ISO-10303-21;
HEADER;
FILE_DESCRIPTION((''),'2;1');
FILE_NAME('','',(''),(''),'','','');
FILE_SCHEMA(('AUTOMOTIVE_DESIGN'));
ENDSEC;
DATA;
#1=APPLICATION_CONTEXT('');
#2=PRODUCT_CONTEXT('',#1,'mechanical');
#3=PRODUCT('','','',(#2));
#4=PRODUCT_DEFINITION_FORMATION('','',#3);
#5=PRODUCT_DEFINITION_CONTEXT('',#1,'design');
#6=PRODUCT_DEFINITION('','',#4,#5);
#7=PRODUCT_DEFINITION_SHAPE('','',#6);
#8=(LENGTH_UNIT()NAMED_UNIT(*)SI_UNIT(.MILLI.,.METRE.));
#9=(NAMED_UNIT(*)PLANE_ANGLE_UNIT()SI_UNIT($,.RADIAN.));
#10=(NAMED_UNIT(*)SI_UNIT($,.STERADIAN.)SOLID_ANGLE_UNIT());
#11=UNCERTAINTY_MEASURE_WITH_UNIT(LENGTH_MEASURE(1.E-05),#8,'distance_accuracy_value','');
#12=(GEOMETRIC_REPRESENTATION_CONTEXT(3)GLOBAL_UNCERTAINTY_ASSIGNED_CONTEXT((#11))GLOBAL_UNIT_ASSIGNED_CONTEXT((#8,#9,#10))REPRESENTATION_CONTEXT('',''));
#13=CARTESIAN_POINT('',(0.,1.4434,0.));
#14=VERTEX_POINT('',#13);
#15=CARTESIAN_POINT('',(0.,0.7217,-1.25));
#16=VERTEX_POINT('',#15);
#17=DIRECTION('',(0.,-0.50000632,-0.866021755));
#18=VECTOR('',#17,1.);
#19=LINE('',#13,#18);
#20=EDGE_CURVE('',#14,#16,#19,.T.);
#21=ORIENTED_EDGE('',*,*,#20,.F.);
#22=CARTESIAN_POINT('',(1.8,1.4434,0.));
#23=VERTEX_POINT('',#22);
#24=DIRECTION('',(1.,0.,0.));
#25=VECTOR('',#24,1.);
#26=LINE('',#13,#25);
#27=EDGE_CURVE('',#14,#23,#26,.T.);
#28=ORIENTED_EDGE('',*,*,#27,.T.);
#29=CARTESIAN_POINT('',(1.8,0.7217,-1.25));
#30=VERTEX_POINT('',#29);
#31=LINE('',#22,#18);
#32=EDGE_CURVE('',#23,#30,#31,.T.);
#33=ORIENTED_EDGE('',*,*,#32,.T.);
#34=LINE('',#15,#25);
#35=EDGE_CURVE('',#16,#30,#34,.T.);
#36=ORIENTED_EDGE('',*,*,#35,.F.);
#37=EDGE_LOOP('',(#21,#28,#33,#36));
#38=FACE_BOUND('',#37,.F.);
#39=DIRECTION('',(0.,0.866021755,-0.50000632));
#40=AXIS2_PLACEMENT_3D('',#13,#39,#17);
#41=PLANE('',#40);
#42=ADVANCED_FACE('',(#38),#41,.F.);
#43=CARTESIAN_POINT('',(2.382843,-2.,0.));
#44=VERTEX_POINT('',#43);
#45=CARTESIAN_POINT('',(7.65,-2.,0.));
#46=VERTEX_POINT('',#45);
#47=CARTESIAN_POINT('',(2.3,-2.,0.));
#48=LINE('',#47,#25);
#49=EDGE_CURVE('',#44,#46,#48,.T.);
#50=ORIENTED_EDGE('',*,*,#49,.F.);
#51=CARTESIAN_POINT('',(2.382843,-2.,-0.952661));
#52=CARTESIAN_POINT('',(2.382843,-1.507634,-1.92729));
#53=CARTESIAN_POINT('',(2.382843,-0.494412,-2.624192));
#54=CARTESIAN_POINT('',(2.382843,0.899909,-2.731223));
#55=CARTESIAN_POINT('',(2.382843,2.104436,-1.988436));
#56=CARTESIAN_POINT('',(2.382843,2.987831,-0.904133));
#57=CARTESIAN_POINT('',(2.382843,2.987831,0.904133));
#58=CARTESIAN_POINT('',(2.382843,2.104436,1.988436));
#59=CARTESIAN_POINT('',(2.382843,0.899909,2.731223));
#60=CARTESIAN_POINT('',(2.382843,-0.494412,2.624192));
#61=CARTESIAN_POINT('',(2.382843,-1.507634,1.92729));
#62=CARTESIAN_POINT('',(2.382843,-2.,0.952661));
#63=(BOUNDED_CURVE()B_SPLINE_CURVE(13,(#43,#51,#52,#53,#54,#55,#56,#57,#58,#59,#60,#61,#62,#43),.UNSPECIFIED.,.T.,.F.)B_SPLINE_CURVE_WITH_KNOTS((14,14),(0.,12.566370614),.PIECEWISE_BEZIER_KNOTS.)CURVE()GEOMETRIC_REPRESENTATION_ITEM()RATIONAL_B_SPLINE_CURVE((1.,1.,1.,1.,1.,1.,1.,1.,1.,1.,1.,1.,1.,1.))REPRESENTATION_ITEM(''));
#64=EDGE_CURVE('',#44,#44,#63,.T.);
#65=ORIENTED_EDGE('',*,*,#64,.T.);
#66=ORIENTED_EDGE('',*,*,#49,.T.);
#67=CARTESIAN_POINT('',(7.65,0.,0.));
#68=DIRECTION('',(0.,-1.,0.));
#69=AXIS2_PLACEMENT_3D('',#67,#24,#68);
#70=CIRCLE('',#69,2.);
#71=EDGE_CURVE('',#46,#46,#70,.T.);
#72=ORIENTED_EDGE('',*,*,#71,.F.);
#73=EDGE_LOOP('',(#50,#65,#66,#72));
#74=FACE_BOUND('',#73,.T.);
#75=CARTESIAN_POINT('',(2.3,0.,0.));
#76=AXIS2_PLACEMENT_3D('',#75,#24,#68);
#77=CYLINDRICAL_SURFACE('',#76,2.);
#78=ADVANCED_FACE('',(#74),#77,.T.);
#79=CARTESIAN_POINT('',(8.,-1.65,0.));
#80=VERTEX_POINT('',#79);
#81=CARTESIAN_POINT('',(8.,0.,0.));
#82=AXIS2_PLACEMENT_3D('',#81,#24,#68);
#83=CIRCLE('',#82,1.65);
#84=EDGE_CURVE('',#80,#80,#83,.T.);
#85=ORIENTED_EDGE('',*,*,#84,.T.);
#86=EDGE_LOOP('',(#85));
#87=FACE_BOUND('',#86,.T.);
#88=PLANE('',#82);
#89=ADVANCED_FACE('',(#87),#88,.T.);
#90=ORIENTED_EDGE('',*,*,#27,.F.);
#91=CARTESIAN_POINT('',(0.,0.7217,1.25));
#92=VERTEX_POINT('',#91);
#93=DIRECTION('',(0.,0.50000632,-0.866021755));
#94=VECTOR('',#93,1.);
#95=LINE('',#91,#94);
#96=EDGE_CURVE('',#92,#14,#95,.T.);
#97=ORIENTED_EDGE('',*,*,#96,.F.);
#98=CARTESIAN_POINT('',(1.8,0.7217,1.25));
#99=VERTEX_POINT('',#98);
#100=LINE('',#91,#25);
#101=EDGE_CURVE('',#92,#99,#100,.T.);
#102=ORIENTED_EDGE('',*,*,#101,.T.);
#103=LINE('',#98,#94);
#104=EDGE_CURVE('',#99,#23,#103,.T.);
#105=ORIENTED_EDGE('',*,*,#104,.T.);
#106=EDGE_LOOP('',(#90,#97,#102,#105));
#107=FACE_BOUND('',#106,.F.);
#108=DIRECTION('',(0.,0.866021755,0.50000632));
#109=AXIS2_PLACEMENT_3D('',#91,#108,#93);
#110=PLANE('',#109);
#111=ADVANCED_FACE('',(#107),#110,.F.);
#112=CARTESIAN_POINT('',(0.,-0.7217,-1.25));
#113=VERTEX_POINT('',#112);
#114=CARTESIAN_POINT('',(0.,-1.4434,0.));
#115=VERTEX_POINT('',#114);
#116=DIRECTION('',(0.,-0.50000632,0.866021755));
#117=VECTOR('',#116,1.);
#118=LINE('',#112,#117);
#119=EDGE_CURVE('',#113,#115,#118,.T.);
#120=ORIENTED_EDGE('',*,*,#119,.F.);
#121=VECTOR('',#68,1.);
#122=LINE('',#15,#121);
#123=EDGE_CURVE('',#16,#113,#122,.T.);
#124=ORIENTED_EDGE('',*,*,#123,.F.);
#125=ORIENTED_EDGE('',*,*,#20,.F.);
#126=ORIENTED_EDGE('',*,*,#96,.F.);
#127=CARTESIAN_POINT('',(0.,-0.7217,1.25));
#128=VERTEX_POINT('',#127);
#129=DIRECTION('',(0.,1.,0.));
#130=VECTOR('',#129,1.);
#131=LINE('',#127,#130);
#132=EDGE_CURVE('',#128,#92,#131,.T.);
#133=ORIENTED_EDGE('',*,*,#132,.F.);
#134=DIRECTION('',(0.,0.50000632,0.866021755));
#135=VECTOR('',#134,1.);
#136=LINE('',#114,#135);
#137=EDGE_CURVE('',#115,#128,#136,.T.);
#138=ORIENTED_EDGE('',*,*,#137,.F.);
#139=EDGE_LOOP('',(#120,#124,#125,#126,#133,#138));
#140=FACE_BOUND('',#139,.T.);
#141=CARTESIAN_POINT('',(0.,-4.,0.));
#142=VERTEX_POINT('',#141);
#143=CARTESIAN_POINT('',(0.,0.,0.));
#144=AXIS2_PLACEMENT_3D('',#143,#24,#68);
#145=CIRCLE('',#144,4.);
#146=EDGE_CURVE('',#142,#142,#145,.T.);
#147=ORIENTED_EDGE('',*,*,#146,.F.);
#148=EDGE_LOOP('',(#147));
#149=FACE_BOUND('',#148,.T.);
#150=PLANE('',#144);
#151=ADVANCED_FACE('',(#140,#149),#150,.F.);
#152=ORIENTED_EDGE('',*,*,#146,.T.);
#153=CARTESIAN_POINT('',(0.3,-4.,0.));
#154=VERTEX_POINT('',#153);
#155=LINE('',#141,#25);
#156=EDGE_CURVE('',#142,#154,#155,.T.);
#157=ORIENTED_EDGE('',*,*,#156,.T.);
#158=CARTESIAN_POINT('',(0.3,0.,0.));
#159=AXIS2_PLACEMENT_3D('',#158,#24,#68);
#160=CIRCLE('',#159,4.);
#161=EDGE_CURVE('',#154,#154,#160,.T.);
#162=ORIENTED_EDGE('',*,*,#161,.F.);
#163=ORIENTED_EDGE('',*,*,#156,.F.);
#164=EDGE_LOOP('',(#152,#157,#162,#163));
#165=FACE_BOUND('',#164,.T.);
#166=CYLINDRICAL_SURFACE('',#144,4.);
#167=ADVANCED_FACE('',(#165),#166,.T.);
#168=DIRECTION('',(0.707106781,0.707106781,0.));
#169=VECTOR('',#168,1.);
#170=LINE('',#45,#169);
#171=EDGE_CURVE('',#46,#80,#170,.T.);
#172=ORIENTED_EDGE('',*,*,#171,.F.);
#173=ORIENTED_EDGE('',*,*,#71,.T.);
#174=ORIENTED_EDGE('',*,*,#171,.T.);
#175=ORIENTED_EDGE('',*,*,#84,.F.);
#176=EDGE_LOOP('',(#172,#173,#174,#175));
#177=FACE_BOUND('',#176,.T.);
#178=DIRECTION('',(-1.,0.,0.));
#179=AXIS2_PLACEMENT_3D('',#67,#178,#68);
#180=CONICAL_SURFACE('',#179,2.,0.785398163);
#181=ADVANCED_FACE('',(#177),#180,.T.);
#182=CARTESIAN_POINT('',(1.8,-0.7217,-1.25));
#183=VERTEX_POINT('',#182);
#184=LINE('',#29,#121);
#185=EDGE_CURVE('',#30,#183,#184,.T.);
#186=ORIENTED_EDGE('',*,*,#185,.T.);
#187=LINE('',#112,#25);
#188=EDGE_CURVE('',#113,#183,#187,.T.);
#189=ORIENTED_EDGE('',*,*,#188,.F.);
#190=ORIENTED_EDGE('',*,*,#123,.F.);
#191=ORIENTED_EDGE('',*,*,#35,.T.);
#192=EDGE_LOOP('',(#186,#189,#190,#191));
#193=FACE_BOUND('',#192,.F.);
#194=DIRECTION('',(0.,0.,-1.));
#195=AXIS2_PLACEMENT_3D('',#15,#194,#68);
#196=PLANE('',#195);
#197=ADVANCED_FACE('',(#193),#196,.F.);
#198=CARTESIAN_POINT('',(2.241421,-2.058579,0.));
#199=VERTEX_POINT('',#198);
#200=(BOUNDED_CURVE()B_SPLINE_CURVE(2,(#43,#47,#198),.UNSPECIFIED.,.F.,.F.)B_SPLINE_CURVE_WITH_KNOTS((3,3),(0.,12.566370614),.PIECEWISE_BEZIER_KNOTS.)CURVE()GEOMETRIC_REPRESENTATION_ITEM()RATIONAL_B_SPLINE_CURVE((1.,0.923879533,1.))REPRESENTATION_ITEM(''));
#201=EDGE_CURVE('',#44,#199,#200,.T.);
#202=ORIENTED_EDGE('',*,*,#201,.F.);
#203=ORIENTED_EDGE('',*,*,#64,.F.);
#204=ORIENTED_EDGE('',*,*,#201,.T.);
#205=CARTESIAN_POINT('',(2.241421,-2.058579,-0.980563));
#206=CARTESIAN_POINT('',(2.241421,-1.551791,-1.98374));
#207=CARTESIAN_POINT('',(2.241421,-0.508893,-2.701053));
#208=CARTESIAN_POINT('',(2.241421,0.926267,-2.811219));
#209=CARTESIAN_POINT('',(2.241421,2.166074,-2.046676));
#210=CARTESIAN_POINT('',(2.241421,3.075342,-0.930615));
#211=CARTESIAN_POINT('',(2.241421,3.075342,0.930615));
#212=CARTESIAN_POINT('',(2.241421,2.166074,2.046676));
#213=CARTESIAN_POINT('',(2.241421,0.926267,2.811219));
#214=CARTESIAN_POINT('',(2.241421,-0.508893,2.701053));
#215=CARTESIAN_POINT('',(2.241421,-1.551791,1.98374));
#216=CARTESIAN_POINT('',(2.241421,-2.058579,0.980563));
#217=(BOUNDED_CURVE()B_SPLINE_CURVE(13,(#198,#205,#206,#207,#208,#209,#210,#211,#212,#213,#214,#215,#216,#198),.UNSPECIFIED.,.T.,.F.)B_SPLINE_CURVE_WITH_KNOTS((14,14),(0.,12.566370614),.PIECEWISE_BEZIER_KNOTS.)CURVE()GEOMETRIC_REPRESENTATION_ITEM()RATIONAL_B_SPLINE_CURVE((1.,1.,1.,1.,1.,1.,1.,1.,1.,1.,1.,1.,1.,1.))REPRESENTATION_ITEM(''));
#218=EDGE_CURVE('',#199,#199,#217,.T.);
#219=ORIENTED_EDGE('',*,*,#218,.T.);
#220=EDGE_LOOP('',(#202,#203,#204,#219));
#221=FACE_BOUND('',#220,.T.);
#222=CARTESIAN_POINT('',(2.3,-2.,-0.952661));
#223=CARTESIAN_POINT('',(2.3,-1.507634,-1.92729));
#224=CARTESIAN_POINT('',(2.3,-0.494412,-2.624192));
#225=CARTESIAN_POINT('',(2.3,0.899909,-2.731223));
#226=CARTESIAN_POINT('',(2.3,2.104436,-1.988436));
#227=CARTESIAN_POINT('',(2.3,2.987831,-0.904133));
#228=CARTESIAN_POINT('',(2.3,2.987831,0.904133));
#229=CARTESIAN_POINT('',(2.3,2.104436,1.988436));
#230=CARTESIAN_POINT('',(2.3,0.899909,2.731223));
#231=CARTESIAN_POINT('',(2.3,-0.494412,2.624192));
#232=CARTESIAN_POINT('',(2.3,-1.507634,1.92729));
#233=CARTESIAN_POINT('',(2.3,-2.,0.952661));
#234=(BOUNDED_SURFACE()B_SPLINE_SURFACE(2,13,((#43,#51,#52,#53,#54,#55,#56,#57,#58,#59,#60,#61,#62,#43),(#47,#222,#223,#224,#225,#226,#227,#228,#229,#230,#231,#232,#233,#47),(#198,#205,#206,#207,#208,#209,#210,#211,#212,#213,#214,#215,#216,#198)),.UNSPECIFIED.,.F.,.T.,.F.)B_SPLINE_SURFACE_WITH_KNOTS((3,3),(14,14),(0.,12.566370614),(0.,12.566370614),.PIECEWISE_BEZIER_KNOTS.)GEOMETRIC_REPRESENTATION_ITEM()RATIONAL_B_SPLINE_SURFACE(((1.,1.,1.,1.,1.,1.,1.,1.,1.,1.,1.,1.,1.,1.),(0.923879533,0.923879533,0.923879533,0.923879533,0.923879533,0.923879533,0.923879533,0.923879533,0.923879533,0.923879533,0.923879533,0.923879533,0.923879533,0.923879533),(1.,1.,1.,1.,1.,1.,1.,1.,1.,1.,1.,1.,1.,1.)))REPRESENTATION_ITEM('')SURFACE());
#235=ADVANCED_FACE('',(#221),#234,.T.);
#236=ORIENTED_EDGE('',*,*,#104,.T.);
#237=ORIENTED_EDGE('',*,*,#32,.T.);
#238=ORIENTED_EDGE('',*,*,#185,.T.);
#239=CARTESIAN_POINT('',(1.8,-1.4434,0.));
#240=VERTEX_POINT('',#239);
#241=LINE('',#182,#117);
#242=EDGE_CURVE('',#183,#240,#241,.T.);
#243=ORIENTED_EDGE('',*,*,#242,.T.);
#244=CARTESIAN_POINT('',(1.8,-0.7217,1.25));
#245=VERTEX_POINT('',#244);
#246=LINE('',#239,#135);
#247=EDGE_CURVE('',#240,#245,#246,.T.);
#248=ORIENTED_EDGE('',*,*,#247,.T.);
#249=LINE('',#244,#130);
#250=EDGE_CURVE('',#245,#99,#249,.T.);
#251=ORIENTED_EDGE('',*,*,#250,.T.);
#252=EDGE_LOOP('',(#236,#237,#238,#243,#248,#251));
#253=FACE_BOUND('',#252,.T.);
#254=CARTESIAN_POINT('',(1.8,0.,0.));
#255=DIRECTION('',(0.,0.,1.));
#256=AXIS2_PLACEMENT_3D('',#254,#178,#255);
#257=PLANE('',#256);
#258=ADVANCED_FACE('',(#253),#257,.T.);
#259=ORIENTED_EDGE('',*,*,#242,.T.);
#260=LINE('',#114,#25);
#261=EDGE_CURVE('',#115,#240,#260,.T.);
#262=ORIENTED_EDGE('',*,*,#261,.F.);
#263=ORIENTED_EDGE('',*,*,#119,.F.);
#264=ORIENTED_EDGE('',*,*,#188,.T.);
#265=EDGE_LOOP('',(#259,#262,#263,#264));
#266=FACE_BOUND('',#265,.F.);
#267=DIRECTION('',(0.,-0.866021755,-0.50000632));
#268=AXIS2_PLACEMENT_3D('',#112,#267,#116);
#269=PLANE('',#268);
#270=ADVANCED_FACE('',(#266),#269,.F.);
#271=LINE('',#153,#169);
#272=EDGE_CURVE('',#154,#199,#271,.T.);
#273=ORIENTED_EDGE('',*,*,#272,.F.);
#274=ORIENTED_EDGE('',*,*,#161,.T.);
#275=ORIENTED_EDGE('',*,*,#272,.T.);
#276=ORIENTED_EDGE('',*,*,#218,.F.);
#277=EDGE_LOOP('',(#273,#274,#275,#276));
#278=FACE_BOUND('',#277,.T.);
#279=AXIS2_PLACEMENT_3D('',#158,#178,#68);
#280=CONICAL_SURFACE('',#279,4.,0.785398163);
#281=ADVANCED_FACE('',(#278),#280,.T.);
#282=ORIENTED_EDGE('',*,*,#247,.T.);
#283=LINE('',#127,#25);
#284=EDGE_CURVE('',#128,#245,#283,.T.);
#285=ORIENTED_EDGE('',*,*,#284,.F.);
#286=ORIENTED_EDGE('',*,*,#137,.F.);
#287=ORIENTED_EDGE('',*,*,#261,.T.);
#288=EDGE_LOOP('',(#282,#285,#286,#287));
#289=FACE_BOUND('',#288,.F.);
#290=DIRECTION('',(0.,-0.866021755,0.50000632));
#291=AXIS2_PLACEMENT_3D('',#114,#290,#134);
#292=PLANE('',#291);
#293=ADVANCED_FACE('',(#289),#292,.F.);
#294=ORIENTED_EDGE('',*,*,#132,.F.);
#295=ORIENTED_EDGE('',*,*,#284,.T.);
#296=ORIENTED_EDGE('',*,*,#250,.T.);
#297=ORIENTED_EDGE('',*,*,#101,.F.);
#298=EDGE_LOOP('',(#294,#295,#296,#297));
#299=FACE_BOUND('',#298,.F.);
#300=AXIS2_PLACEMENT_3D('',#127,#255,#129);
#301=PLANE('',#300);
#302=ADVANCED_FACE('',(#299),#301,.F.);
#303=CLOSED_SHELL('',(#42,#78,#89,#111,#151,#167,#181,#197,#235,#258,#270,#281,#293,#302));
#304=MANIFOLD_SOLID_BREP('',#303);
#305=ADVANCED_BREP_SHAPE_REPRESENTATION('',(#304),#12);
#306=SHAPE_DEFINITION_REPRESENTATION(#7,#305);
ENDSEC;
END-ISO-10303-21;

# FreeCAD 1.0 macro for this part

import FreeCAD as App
import Part
import Sketcher

V = App.Vector
Q = App.Units.Quantity


def edges_at(feature, points):
    """Names of the edges that pass closest to the given points."""
    edges = feature.Shape.Edges
    near = lambda p: min(range(len(edges)), key=lambda i: edges[i].distToShape(Part.Vertex(*p))[0])
    return sorted({f"Edge{near(p) + 1}" for p in points})

doc = App.newDocument("Part")
params = doc.addObject("Spreadsheet::Sheet", "Params")
for row, (alias, value) in enumerate([
    ("sketch1_width", "8 mm"),
    ("sketch1_height", "2 mm"),
    ("sketch1_height2", "4 mm"),
    ("sketch1_width2", "0.3 mm"),
    ("revolution_angle", "360 deg"),
    ("pocket1_length", "1.8 mm"),
    ("fillet_radius", "0.2 mm"),
    ("chamfer_size", "0.35 mm"),
], start=1):
    params.set(f"A{row}", alias)
    params.set(f"B{row}", "=" + value)
    params.setAlias(f"B{row}", alias)

body = doc.addObject("PartDesign::Body", "Body")

sketch1 = body.newObject("Sketcher::SketchObject", "Sketch")
sketch1.AttachmentSupport = (doc.getObject("XY_Plane"), [""])
sketch1.MapMode = "FlatFace"
sketch1.addGeometry([
    Part.LineSegment(V(2.3, -2, 0), V(8, -2, 0)),
    Part.LineSegment(V(8, -2, 0), V(8, 0, 0)),
    Part.LineSegment(V(8, 0, 0), V(0, 0, 0)),
    Part.LineSegment(V(0, 0, 0), V(0, -4, 0)),
    Part.LineSegment(V(0, -4, 0), V(0.3, -4, 0)),
    Part.LineSegment(V(0.3, -4, 0), V(2.3, -2, 0)),
], False)
sketch1.addConstraint([
    Sketcher.Constraint("Coincident", 0, 2, 1, 1),
    Sketcher.Constraint("Coincident", 1, 2, 2, 1),
    Sketcher.Constraint("Coincident", 2, 2, 3, 1),
    Sketcher.Constraint("Coincident", 3, 2, 4, 1),
    Sketcher.Constraint("Coincident", 4, 2, 5, 1),
    Sketcher.Constraint("Coincident", 5, 2, 0, 1),
    Sketcher.Constraint("Horizontal", 0),
    Sketcher.Constraint("Vertical", 1),
    Sketcher.Constraint("Horizontal", 2),
    Sketcher.Constraint("Vertical", 3),
    Sketcher.Constraint("Horizontal", 4),
    Sketcher.Constraint("Coincident", 2, 2, -1, 1),
    Sketcher.Constraint("DistanceX", 2, 2, 2, 1, 8.0),
    Sketcher.Constraint("DistanceY", 1, 1, 1, 2, 2.0),
    Sketcher.Constraint("DistanceY", 3, 2, 3, 1, 4.0),
    Sketcher.Constraint("Angle", 5, Q("45 deg")),
    Sketcher.Constraint("DistanceX", 4, 1, 4, 2, 0.3),
])
sketch1.setExpression("Constraints[12]", "Params.sketch1_width")
sketch1.setExpression("Constraints[13]", "Params.sketch1_height")
sketch1.setExpression("Constraints[14]", "Params.sketch1_height2")
sketch1.setExpression("Constraints[16]", "Params.sketch1_width2")
revolution = body.newObject("PartDesign::Revolution", "Revolution")
revolution.Profile = sketch1
revolution.ReferenceAxis = (sketch1, ["H_Axis"])
revolution.setExpression("Angle", "Params.revolution_angle")

sketch2 = body.newObject("Sketcher::SketchObject", "Sketch001")
sketch2.AttachmentSupport = (doc.getObject("YZ_Plane"), [""])
sketch2.MapMode = "FlatFace"
sketch2.addGeometry([
    Part.LineSegment(V(1.4, 0, 0), V(0.7, -1.2, 0)),
    Part.LineSegment(V(0.7, -1.2, 0), V(-0.7, -1.2, 0)),
    Part.LineSegment(V(-0.7, -1.2, 0), V(-1.4, 0, 0)),
    Part.LineSegment(V(-1.4, 0, 0), V(-0.7, 1.2, 0)),
    Part.LineSegment(V(-0.7, 1.2, 0), V(0.7, 1.2, 0)),
    Part.LineSegment(V(0.7, 1.2, 0), V(1.4, 0, 0)),
], False)
sketch2.addConstraint([
    Sketcher.Constraint("Coincident", 0, 2, 1, 1),
    Sketcher.Constraint("Coincident", 1, 2, 2, 1),
    Sketcher.Constraint("Coincident", 2, 2, 3, 1),
    Sketcher.Constraint("Coincident", 3, 2, 4, 1),
    Sketcher.Constraint("Coincident", 4, 2, 5, 1),
    Sketcher.Constraint("Coincident", 5, 2, 0, 1),
    Sketcher.Constraint("Horizontal", 1),
    Sketcher.Constraint("Horizontal", 4),
    Sketcher.Constraint("Symmetric", 0, 2, 3, 2, -1, 1),
    Sketcher.Constraint("Symmetric", 2, 2, 5, 2, -1, 1),
    Sketcher.Constraint("PointOnObject", 2, 2, -1),
    Sketcher.Constraint("Parallel", 2, 5),
    Sketcher.Constraint("Vertical", 1, 2, 3, 2),
    Sketcher.Constraint("Angle", 0, Q("-120.0004 deg")),
    Sketcher.Constraint("DistanceY", 1, 2, 3, 2, 2.5),
    Sketcher.Constraint("DistanceX", 1, 2, 1, 1, 1.4434),
])
pocket1 = body.newObject("PartDesign::Pocket", "Pocket")
pocket1.Profile = sketch2
pocket1.setExpression("Length", "Params.pocket1_length")
pocket1.Reversed = True
doc.recompute()

fillet = body.newObject("PartDesign::Fillet", "Fillet")
fillet.Base = (pocket1, edges_at(pocket1, [(2.3, 2, 0)]))
fillet.setExpression("Radius", "Params.fillet_radius")
doc.recompute()

chamfer = body.newObject("PartDesign::Chamfer", "Chamfer")
chamfer.Base = (fillet, edges_at(fillet, [(8, 2, 0)]))
chamfer.setExpression("Size", "Params.chamfer_size")

doc.recompute()
